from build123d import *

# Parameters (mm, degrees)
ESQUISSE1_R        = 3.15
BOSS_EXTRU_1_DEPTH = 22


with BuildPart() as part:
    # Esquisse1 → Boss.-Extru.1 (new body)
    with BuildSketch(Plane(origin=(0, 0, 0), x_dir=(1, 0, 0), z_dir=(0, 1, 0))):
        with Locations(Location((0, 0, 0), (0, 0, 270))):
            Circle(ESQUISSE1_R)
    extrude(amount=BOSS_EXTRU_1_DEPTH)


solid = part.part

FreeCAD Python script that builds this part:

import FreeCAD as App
import Part
import Sketcher

V = App.Vector

doc = App.newDocument("Part")
body = doc.addObject("PartDesign::Body", "Body")

# Sketch on XZ plane
sketch1 = body.newObject("Sketcher::SketchObject", "Sketch")
sketch1.AttachmentSupport = (doc.getObject("XZ_Plane"), [""])
sketch1.MapMode = "FlatFace"
sketch1.addGeometry(Part.Circle(V(0, 0, 0), V(0, 0, 1), 3.1), False)
sketch1.addConstraint([
    Sketcher.Constraint("Coincident", 0, 3, -1, 1),
    Sketcher.Constraint("Diameter", 0, 6.3),
])
pad1 = body.newObject("PartDesign::Pad", "Pad")
pad1.Profile = sketch1
pad1.Length = 22
pad1.Reversed = True

doc.recompute()
